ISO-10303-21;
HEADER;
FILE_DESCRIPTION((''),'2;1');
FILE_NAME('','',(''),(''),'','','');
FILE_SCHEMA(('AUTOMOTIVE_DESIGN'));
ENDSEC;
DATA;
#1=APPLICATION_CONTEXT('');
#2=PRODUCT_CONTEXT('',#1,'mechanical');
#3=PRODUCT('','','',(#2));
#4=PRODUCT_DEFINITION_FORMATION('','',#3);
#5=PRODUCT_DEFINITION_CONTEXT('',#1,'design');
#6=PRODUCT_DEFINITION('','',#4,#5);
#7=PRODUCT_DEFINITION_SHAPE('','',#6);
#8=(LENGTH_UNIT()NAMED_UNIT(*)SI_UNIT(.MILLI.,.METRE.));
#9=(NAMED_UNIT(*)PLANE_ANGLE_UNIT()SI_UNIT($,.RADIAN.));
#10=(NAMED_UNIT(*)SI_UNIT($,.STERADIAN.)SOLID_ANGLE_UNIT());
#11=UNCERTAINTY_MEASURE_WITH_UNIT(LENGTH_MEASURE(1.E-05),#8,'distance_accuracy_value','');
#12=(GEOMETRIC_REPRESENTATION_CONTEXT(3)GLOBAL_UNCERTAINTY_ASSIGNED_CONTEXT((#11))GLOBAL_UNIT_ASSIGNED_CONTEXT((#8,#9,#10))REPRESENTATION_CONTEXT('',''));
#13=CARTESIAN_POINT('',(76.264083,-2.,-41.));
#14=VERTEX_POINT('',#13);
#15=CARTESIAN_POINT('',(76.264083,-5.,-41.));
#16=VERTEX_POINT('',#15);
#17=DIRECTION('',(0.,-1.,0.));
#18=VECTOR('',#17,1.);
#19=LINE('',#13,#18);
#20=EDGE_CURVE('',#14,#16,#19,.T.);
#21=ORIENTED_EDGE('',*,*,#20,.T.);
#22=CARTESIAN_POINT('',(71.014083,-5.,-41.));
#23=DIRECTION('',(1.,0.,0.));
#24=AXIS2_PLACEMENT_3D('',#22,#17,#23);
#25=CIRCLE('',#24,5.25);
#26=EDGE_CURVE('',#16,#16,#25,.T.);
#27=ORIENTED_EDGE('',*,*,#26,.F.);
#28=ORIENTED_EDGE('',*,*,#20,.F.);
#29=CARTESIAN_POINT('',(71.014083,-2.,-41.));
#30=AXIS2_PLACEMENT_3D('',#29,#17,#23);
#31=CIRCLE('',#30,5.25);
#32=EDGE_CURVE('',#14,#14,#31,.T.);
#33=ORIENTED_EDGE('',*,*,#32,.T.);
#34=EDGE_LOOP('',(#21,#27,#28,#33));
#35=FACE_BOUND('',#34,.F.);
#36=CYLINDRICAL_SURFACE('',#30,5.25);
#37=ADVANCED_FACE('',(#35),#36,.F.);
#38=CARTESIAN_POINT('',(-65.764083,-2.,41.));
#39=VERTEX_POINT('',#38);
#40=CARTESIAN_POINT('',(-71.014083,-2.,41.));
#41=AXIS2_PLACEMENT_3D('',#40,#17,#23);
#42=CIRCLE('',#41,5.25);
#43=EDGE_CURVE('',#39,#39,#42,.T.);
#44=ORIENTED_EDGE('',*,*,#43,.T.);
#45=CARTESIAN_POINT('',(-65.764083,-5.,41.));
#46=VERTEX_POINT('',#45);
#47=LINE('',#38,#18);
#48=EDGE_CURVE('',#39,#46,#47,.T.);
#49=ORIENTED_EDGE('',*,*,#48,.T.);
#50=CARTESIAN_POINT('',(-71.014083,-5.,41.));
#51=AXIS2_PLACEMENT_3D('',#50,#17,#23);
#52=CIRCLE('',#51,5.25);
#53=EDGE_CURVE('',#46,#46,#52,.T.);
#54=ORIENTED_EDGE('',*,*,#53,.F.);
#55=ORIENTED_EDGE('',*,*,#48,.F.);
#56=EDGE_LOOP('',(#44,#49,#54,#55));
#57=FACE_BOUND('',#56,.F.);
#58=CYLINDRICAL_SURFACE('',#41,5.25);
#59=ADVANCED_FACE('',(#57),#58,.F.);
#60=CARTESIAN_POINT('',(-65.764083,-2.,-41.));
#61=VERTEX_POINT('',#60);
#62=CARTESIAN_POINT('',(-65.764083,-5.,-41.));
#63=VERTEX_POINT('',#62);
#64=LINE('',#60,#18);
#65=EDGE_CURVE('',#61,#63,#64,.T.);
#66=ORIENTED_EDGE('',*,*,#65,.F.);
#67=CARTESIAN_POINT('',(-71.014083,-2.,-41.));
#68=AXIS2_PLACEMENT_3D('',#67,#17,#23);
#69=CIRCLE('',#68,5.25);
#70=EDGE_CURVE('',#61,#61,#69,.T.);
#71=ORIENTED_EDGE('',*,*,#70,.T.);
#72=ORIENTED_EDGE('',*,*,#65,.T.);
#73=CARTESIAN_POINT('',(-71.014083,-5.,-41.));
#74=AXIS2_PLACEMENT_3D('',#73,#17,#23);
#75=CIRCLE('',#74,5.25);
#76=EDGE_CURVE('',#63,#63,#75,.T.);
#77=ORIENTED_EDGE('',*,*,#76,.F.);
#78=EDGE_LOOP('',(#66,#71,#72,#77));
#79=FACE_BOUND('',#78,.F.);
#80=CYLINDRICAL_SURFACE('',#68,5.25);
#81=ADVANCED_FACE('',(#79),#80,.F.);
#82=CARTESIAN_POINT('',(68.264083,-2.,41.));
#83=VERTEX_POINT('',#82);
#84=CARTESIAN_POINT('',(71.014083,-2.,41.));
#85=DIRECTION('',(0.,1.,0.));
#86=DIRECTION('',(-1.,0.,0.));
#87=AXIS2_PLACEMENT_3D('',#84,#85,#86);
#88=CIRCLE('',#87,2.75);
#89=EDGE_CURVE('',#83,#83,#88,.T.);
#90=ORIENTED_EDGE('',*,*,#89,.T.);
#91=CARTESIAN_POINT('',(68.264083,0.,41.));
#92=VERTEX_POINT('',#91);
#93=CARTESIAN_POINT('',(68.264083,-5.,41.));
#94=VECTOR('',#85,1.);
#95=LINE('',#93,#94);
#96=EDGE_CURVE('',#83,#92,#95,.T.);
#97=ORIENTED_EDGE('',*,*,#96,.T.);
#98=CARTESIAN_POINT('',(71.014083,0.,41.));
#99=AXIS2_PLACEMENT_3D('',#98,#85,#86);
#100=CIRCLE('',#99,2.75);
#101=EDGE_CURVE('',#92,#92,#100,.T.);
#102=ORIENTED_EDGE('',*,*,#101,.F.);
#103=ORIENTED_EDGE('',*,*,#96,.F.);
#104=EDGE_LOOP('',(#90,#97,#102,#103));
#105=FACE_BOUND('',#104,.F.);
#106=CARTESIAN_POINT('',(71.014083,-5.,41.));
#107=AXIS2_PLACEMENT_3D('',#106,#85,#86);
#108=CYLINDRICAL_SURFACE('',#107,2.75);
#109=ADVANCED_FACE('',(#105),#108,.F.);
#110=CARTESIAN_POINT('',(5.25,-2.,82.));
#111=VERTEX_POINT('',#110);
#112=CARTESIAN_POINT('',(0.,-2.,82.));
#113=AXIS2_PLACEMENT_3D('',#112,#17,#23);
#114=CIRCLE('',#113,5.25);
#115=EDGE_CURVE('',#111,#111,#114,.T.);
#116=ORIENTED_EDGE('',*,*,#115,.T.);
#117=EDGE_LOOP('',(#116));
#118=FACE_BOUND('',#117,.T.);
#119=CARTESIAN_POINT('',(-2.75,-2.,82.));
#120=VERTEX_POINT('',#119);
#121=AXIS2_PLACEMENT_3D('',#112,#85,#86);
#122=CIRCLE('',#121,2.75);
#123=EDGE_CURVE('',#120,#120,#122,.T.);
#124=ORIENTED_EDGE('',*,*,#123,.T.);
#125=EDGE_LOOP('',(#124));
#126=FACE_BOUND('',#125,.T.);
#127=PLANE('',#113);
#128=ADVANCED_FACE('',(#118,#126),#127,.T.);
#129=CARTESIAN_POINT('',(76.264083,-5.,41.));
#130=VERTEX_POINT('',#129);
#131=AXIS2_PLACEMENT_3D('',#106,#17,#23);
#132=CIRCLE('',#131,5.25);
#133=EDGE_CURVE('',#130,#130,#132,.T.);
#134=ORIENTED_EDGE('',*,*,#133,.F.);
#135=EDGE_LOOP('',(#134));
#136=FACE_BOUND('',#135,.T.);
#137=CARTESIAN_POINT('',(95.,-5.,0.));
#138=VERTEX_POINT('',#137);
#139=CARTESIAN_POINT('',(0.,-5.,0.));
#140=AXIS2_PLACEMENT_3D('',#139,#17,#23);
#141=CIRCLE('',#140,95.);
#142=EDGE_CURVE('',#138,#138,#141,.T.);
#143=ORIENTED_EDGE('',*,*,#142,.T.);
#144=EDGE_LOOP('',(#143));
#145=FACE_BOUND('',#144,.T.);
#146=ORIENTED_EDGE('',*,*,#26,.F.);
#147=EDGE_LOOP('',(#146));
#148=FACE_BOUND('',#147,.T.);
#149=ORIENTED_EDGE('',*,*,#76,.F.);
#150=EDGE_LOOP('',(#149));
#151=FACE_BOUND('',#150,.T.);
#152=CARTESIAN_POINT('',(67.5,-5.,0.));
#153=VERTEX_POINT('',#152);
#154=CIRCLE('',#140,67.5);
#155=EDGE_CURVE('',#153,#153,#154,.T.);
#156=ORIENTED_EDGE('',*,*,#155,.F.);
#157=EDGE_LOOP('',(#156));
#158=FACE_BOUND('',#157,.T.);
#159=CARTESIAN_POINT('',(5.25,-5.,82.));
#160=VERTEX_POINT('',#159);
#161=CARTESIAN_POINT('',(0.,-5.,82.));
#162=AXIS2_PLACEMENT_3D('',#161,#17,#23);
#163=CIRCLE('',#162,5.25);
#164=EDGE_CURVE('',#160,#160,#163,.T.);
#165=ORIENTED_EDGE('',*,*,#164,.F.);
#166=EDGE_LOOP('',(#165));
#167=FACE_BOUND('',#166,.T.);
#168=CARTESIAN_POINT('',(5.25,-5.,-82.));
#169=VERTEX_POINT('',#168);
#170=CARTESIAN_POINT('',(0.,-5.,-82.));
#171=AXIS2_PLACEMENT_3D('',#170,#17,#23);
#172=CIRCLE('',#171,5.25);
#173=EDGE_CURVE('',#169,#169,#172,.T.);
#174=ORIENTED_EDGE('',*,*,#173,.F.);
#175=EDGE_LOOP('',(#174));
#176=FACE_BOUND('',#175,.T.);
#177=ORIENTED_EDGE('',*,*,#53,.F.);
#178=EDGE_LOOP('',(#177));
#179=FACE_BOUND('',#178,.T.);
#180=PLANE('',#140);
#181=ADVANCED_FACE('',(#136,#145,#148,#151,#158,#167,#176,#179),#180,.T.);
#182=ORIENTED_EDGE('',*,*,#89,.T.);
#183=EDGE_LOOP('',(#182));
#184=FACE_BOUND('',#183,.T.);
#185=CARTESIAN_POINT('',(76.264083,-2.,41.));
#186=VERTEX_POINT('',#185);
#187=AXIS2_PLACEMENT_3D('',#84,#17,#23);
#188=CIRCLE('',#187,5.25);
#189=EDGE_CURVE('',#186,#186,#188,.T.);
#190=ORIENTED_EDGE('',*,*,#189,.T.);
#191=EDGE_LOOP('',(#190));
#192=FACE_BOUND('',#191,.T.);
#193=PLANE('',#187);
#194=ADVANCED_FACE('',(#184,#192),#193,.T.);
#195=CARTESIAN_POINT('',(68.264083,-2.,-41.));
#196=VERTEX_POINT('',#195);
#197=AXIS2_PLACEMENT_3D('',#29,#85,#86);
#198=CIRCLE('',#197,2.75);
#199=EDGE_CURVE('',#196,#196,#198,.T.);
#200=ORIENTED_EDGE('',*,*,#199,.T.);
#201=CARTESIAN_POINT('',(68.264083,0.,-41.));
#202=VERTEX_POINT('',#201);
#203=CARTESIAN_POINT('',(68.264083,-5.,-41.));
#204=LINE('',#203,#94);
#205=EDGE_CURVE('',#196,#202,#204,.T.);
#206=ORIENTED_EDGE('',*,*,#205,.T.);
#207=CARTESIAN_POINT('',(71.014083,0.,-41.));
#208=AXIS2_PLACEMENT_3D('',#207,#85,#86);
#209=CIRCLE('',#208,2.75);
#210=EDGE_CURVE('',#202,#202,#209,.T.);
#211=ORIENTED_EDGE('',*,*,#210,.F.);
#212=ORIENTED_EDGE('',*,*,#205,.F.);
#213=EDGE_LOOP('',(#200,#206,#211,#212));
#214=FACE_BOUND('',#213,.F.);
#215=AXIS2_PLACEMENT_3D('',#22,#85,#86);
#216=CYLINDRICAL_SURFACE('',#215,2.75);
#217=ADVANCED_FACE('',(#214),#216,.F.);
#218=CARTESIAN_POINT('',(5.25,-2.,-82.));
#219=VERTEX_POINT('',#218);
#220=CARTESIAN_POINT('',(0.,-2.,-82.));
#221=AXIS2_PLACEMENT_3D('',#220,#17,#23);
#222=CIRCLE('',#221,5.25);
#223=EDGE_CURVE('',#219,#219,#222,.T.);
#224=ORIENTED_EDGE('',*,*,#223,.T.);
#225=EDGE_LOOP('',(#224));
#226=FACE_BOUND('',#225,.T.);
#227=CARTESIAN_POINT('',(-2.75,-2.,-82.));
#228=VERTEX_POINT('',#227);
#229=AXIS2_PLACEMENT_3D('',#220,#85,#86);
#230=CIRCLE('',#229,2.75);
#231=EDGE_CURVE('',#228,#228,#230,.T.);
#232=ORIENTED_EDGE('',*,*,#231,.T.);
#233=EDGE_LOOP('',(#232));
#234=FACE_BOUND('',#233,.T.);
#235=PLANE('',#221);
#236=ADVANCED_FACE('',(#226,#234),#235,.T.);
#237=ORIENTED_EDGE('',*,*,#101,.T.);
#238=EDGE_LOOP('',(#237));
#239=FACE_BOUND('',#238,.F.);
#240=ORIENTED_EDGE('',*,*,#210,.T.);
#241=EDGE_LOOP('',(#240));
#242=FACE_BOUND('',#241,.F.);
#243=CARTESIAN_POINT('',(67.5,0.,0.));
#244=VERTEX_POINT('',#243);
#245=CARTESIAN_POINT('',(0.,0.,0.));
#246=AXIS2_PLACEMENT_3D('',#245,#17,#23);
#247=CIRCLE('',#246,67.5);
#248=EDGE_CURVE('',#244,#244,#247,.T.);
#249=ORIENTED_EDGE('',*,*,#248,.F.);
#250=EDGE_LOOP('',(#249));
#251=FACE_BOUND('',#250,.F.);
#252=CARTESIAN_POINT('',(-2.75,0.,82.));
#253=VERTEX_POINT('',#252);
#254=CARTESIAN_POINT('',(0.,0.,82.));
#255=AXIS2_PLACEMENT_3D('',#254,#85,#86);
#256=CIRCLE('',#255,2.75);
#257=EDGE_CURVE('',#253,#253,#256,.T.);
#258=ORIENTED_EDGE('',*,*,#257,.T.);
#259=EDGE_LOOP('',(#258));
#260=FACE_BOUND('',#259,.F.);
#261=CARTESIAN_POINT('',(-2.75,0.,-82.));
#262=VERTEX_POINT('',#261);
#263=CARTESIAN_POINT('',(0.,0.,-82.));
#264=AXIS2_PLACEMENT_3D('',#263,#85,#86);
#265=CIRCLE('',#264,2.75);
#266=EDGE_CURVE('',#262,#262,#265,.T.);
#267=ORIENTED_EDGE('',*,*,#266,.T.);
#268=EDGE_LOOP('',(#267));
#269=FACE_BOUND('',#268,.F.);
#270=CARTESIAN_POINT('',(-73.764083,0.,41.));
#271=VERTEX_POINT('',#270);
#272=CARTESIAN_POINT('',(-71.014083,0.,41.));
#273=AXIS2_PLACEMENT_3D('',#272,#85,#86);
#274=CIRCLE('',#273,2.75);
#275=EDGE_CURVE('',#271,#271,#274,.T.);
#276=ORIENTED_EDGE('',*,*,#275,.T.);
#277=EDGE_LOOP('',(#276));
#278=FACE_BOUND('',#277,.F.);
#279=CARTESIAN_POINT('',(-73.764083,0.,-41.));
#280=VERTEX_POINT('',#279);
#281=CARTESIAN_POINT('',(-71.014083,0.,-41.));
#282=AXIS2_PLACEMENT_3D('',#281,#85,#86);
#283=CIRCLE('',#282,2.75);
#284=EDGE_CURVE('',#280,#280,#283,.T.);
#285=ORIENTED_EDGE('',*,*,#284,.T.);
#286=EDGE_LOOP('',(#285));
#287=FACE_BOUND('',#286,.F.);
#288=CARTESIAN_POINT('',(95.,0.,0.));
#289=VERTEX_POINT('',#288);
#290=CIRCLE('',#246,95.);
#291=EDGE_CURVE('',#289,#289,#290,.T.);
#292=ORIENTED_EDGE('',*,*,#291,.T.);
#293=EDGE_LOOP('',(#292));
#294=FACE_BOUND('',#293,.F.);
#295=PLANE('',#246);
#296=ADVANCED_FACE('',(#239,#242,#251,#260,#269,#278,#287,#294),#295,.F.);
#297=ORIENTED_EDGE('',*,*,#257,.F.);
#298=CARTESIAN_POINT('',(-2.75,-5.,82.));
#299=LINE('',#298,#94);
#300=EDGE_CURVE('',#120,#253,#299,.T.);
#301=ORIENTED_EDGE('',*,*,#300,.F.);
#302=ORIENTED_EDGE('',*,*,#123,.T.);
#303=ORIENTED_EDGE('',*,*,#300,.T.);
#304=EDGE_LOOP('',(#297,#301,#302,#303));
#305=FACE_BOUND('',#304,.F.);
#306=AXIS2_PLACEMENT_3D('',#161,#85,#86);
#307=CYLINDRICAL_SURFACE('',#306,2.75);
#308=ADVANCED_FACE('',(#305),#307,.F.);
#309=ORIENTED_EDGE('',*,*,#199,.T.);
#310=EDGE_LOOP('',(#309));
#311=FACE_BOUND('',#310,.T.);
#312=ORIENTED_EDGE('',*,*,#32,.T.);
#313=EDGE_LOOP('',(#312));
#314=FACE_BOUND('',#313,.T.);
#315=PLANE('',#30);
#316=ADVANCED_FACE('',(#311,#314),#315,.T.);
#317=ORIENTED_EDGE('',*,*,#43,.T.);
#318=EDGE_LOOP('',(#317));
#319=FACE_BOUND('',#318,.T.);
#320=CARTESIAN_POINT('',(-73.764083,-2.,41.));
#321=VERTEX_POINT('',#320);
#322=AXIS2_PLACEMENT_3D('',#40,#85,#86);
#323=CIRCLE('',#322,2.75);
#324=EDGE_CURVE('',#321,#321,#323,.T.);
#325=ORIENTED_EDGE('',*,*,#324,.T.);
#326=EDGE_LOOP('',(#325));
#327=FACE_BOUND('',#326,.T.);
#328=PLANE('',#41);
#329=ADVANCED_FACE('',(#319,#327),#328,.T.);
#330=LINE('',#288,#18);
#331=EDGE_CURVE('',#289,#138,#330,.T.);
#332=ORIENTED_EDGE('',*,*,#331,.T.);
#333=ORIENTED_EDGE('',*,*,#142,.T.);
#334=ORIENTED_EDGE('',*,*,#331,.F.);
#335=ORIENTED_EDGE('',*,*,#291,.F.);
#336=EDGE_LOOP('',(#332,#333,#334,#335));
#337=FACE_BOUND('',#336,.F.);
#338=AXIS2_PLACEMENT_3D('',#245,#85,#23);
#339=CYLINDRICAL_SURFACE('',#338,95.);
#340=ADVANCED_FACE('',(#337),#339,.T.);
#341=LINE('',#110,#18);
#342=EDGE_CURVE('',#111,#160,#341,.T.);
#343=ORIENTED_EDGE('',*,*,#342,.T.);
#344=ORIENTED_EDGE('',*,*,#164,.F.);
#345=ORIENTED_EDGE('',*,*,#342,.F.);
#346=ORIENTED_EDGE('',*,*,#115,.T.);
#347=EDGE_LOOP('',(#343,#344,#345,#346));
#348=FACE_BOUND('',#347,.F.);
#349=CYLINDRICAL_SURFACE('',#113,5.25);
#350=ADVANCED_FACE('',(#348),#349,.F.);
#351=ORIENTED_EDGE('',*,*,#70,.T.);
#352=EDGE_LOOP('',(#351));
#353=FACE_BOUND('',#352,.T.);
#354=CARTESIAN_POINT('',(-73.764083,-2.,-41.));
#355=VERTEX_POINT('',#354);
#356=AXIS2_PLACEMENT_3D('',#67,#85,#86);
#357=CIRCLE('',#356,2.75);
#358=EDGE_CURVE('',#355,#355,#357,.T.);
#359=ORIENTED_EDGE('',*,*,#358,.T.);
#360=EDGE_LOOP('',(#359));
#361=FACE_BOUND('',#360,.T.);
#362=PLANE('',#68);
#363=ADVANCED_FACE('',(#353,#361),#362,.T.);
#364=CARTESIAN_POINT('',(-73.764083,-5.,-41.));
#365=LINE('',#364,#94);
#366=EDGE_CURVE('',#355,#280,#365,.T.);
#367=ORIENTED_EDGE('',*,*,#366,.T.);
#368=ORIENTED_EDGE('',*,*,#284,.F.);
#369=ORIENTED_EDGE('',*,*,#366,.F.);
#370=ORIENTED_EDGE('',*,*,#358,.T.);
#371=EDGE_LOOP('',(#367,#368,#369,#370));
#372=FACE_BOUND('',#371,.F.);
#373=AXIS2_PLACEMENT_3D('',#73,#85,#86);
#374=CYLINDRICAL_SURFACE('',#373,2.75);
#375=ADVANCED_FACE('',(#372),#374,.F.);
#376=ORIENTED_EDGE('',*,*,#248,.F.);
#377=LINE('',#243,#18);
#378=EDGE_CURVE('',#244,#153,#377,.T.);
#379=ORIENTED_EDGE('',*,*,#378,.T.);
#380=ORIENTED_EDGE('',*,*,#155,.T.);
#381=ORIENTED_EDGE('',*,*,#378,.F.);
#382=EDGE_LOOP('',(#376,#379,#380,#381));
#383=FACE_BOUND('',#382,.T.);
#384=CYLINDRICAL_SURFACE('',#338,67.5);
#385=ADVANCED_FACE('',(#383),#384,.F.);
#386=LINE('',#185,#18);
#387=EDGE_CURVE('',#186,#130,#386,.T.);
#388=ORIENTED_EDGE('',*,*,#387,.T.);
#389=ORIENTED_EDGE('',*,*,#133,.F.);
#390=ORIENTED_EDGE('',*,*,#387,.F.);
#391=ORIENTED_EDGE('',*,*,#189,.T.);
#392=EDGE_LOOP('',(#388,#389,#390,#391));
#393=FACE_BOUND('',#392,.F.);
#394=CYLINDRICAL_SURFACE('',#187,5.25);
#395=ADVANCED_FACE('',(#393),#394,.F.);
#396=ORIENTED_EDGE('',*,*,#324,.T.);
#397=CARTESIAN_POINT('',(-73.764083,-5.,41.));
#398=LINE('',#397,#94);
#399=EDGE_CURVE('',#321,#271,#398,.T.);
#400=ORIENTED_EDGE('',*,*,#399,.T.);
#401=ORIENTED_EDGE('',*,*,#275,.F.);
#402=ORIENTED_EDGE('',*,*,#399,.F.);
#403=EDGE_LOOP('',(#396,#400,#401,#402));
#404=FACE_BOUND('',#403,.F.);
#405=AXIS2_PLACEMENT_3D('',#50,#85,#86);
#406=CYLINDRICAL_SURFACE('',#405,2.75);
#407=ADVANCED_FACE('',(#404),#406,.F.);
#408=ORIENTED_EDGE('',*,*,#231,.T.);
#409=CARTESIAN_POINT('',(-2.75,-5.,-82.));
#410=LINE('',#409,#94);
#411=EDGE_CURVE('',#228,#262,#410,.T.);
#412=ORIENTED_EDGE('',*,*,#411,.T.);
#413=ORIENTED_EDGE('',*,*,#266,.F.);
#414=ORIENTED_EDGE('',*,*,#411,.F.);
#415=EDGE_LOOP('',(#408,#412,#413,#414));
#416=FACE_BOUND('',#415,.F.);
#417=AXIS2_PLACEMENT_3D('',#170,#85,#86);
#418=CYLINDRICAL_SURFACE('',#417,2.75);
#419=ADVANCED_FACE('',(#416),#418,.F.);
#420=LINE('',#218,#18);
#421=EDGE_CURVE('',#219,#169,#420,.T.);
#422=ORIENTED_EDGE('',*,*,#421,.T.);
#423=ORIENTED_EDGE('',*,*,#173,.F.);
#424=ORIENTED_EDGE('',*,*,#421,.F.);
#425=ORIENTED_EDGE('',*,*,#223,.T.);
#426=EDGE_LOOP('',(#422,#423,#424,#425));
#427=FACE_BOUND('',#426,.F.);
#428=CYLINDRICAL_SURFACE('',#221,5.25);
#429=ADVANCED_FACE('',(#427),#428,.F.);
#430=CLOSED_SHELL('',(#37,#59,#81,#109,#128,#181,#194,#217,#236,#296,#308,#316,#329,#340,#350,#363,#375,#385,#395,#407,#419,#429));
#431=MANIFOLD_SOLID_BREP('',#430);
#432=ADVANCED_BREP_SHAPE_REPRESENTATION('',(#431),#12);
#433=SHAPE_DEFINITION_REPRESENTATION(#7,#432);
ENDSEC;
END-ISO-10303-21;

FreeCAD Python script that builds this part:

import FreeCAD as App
import Part
import Sketcher
from FreeCAD import Vector
Q = App.Units.Quantity

doc = App.newDocument("Part")
params = doc.addObject("Spreadsheet::Sheet", "Params")
for row, (alias, value) in enumerate([
    ("sketch1_diameter", "190 mm"),
    ("sketch1_diameter2", "135 mm"),
    ("pad1_length", "5 mm"),
    ("sketch2_diameter", "5.5 mm"),
    ("hole_diameter", "5.5 mm"),
    ("hole_cbore_diameter", "10.5 mm"),
    ("hole_cbore_depth", "3 mm"),
], start=1):
    params.set(f"A{row}", alias)
    params.set(f"B{row}", "=" + value)
    params.setAlias(f"B{row}", alias)

body = doc.addObject("PartDesign::Body", "Body")

sketch1 = body.newObject("Sketcher::SketchObject", "Sketch")
sketch1.AttachmentSupport = (doc.getObject("XZ_Plane"), [""])
sketch1.MapMode = "FlatFace"
sketch1.addGeometry(Part.Circle(Vector(0, 0, 0), Vector(0, 0, 1), 95), False)
sketch1.addGeometry(Part.Circle(Vector(0, 0, 0), Vector(0, 0, 1), 68), False)
sketch1.addConstraint(Sketcher.Constraint("Coincident", 0, 3, -1, 1))
sketch1.addConstraint(Sketcher.Constraint("Coincident", 1, 3, -1, 1))
sketch1.addConstraint(Sketcher.Constraint("Diameter", 0, Q("190 mm")))
sketch1.addConstraint(Sketcher.Constraint("Diameter", 1, Q("135 mm")))
sketch1.setExpression("Constraints[2]", "Params.sketch1_diameter")
sketch1.setExpression("Constraints[3]", "Params.sketch1_diameter2")
pad1 = body.newObject("PartDesign::Pad", "Pad")
pad1.Profile = sketch1
pad1.setExpression("Length", "Params.pad1_length")

sketch2 = body.newObject("Sketcher::SketchObject", "Sketch001")
sketch2.AttachmentSupport = (doc.getObject("XZ_Plane"), [""])
sketch2.MapMode = "FlatFace"
sketch2.AttachmentOffset = App.Placement(Vector(0, 0, 5), App.Rotation())
sketch2.addGeometry(Part.Circle(Vector(0, 82, 0), Vector(0, 0, 1), 2.8), False)
sketch2.addGeometry(Part.Circle(Vector(-71, 41, 0), Vector(0, 0, 1), 2.8), False)
sketch2.addGeometry(Part.Circle(Vector(-71, -41, 0), Vector(0, 0, 1), 2.8), False)
sketch2.addGeometry(Part.Circle(Vector(71, -41, 0), Vector(0, 0, 1), 2.8), False)
sketch2.addGeometry(Part.Circle(Vector(71, 41, 0), Vector(0, 0, 1), 2.8), False)
sketch2.addGeometry(Part.Circle(Vector(0, -82, 0), Vector(0, 0, 1), 2.8), False)
sketch2.addConstraint(Sketcher.Constraint("Equal", 0, 1))
sketch2.addConstraint(Sketcher.Constraint("Equal", 1, 2))
sketch2.addConstraint(Sketcher.Constraint("Equal", 2, 3))
sketch2.addConstraint(Sketcher.Constraint("Equal", 3, 4))
sketch2.addConstraint(Sketcher.Constraint("Equal", 4, 5))
sketch2.addConstraint(Sketcher.Constraint("Symmetric", 1, 3, 3, 3, -1, 1))
sketch2.addConstraint(Sketcher.Constraint("Symmetric", 2, 3, 4, 3, -1, 1))
sketch2.addConstraint(Sketcher.Constraint("Symmetric", 0, 3, 5, 3, -1, 1))
sketch2.addConstraint(Sketcher.Constraint("Symmetric", 2, 3, 3, 3, -2))
sketch2.addConstraint(Sketcher.Constraint("PointOnObject", 0, 3, -2))
sketch2.addConstraint(Sketcher.Constraint("Diameter", 0, Q("5.5 mm")))
sketch2.addConstraint(Sketcher.Constraint("DistanceY", -1, 1, 0, 3, Q("82 mm")))
sketch2.addConstraint(Sketcher.Constraint("DistanceY", -1, 1, 1, 3, Q("41 mm")))
sketch2.addConstraint(Sketcher.Constraint("DistanceX", 1, 3, -1, 1, Q("71.014083 mm")))
sketch2.setExpression("Constraints[10]", "Params.sketch2_diameter")
doc.recompute()
hole = body.newObject("PartDesign::Hole", "Hole")
hole.Profile = sketch2
hole.ThreadType = "None"
hole.setExpression("Diameter", "Params.hole_diameter")
hole.DepthType = "ThroughAll"
hole.HoleCutType = "Counterbore"
hole.setExpression("HoleCutDiameter", "Params.hole_cbore_diameter")
hole.setExpression("HoleCutDepth", "Params.hole_cbore_depth")

doc.recompute()
